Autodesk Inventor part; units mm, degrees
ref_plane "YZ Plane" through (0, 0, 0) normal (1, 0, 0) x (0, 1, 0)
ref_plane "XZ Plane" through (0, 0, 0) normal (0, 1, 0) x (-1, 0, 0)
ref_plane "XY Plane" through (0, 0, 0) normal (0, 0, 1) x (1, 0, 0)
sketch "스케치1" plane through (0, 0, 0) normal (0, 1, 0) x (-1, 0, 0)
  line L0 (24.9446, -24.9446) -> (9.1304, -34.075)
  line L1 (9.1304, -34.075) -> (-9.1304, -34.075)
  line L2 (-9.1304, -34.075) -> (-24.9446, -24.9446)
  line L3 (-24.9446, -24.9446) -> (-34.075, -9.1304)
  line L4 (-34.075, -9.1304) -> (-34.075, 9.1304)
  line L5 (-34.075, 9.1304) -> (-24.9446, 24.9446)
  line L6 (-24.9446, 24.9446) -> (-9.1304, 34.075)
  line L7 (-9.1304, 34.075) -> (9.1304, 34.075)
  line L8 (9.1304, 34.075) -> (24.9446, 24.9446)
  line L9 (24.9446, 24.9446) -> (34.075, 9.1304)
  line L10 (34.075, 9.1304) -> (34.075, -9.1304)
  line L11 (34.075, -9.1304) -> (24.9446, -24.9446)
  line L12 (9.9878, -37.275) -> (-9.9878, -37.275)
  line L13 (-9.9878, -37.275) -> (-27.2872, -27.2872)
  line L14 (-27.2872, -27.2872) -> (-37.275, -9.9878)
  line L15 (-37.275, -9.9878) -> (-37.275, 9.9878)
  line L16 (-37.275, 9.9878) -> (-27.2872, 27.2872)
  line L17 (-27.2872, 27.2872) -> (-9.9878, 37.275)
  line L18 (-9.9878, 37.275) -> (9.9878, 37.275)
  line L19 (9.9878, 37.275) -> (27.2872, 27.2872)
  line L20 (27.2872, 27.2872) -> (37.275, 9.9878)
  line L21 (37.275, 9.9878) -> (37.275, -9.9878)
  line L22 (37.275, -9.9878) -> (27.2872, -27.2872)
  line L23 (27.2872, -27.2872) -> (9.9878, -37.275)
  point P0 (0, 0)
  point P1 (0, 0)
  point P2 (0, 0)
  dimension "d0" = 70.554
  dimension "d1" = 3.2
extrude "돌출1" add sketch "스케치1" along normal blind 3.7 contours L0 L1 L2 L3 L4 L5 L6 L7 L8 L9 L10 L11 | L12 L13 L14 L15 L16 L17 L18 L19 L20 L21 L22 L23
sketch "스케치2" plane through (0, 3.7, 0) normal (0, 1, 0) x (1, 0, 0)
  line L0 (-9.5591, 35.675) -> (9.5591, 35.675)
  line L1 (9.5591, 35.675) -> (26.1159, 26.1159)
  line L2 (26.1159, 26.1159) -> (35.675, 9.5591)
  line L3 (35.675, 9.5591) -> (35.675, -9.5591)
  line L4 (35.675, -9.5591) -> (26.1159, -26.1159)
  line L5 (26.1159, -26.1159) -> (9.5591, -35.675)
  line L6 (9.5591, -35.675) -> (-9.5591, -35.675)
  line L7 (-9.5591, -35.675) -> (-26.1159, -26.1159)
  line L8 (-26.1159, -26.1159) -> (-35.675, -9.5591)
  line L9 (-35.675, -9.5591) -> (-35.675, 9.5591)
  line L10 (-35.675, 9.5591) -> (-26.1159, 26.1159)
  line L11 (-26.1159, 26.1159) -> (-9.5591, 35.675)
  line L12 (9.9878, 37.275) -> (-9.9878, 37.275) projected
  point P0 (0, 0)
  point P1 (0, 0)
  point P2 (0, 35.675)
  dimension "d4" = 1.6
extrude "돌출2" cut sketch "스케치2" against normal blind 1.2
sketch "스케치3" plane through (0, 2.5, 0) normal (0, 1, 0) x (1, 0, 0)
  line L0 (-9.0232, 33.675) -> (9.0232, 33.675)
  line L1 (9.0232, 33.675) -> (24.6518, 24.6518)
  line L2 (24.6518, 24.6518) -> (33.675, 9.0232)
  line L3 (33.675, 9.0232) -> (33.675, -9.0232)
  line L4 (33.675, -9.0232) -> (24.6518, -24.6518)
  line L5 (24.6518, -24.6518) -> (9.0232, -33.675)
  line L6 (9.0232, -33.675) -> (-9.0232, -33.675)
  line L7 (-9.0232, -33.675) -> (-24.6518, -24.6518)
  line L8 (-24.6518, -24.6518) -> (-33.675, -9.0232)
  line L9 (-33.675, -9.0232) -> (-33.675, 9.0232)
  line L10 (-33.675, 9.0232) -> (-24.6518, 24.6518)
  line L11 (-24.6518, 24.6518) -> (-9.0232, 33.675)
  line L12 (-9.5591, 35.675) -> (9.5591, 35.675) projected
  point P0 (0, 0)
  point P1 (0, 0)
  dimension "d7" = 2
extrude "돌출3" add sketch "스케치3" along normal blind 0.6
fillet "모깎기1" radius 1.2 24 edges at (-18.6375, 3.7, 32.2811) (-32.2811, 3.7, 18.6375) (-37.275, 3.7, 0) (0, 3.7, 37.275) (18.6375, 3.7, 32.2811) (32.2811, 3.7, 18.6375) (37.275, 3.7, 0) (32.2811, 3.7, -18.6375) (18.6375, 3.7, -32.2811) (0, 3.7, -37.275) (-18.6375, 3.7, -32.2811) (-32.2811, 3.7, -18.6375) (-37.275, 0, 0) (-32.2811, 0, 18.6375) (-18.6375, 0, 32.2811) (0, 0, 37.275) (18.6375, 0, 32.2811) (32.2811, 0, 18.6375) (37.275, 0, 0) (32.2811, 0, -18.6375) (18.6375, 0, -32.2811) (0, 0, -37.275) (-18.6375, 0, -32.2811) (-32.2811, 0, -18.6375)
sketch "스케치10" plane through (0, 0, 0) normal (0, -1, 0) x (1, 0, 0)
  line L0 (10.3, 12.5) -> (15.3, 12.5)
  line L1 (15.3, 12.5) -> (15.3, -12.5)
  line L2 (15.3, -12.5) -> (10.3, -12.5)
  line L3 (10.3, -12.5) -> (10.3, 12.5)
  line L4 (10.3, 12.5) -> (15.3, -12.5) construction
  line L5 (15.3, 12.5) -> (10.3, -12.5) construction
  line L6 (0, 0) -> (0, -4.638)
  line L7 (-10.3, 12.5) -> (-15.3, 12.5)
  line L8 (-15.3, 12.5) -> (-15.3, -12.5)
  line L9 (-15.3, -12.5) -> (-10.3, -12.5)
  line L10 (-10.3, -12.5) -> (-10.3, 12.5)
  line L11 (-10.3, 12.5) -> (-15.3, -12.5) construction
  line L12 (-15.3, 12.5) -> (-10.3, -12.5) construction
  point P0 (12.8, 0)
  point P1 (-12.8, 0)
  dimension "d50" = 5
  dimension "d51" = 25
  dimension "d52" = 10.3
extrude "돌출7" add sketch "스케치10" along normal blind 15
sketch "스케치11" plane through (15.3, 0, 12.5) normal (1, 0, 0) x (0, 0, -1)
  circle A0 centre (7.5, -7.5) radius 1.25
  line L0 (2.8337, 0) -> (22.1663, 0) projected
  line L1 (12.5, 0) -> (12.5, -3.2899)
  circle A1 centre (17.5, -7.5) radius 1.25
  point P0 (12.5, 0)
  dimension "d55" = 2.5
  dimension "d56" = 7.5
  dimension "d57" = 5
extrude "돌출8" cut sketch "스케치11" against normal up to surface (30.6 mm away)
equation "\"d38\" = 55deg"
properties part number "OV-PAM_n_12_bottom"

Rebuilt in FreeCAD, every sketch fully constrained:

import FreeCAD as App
import Part
import Sketcher
from FreeCAD import Vector
Q = App.Units.Quantity


def edges_at(feature, points):
    """Names of the edges that pass closest to the given points."""
    edges = feature.Shape.Edges
    near = lambda p: min(range(len(edges)), key=lambda i: edges[i].distToShape(Part.Vertex(*p))[0])
    return sorted({f"Edge{near(p) + 1}" for p in points})


def add_polygon(sketch, points):
    """Adds a closed chain of lines whose ends are joined by coincident constraints."""
    first, n = sketch.GeometryCount, len(points)
    for a, b in zip(points, points[1:] + points[:1]):
        sketch.addGeometry(Part.LineSegment(App.Vector(*a, 0), App.Vector(*b, 0)), False)
    for i in range(n):
        sketch.addConstraint(Sketcher.Constraint("Coincident", first + i, 2, first + (i + 1) % n, 1))

doc = App.newDocument("Part")
body = doc.addObject("PartDesign::Body", "Body")

sketch1 = body.newObject("Sketcher::SketchObject", "Sketch")
sketch1.AttachmentSupport = (doc.getObject("XZ_Plane"), [""])
sketch1.MapMode = "FlatFace"
add_polygon(sketch1, [(10, -37), (-10, -37), (-27, -27), (-37, -10), (-37, 10), (-27, 27), (-10, 37), (10, 37), (27, 27), (37, 10), (37, -10), (27, -27)])
sketch1.addConstraint(Sketcher.Constraint("Horizontal", 0))
sketch1.addConstraint(Sketcher.Constraint("Vertical", 3))
sketch1.addConstraint(Sketcher.Constraint("Horizontal", 6))
sketch1.addConstraint(Sketcher.Constraint("Vertical", 9))
sketch1.addConstraint(Sketcher.Constraint("Symmetric", 0, 2, 6, 2, -1, 1))
sketch1.addConstraint(Sketcher.Constraint("Symmetric", 1, 2, 7, 2, -1, 1))
sketch1.addConstraint(Sketcher.Constraint("Symmetric", 2, 2, 8, 2, -1, 1))
sketch1.addConstraint(Sketcher.Constraint("Symmetric", 4, 2, 10, 2, -1, 1))
sketch1.addConstraint(Sketcher.Constraint("Symmetric", 4, 2, 7, 2, -2))
sketch1.addConstraint(Sketcher.Constraint("Perpendicular", 1, 4))
sketch1.addConstraint(Sketcher.Constraint("Perpendicular", 2, 5))
sketch1.addConstraint(Sketcher.Constraint("Perpendicular", 7, 10))
sketch1.addConstraint(Sketcher.Constraint("Perpendicular", 8, 11))
sketch1.addConstraint(Sketcher.Constraint("Horizontal", 3, 2, 8, 2))
sketch1.addConstraint(Sketcher.Constraint("Equal", 6, 3))
sketch1.addConstraint(Sketcher.Constraint("Equal", 1, 2))
sketch1.addConstraint(Sketcher.Constraint("Angle", 1, Q("150 deg")))
sketch1.addConstraint(Sketcher.Constraint("DistanceY", 0, 2, 5, 2, Q("74.55 mm")))
sketch1.addConstraint(Sketcher.Constraint("DistanceX", 0, 2, 0, 1, Q("19.9756 mm")))
pad1 = body.newObject("PartDesign::Pad", "Pad")
pad1.Profile = sketch1
pad1.Length = 3.7
pad1.Reversed = True

sketch2 = body.newObject("Sketcher::SketchObject", "Sketch001")
sketch2.AttachmentSupport = (doc.getObject("XZ_Plane"), [""])
sketch2.MapMode = "FlatFace"
sketch2.AttachmentOffset = App.Placement(Vector(0, 0, -3.7), App.Rotation())
add_polygon(sketch2, [(10, -36), (-10, -36), (-26, -26), (-36, -10), (-36, 10), (-26, 26), (-10, 36), (10, 36), (26, 26), (36, 10), (36, -10), (26, -26)])
sketch2.addConstraint(Sketcher.Constraint("Horizontal", 0))
sketch2.addConstraint(Sketcher.Constraint("Vertical", 3))
sketch2.addConstraint(Sketcher.Constraint("Horizontal", 6))
sketch2.addConstraint(Sketcher.Constraint("Vertical", 9))
sketch2.addConstraint(Sketcher.Constraint("Symmetric", 0, 2, 6, 2, -1, 1))
sketch2.addConstraint(Sketcher.Constraint("Symmetric", 1, 2, 7, 2, -1, 1))
sketch2.addConstraint(Sketcher.Constraint("Symmetric", 2, 2, 8, 2, -1, 1))
sketch2.addConstraint(Sketcher.Constraint("Symmetric", 4, 2, 10, 2, -1, 1))
sketch2.addConstraint(Sketcher.Constraint("Symmetric", 4, 2, 7, 2, -2))
sketch2.addConstraint(Sketcher.Constraint("Perpendicular", 1, 4))
sketch2.addConstraint(Sketcher.Constraint("Perpendicular", 2, 5))
sketch2.addConstraint(Sketcher.Constraint("Perpendicular", 7, 10))
sketch2.addConstraint(Sketcher.Constraint("Perpendicular", 8, 11))
sketch2.addConstraint(Sketcher.Constraint("Horizontal", 3, 2, 8, 2))
sketch2.addConstraint(Sketcher.Constraint("Equal", 6, 3))
sketch2.addConstraint(Sketcher.Constraint("Equal", 1, 2))
sketch2.addConstraint(Sketcher.Constraint("Angle", 1, Q("150 deg")))
sketch2.addConstraint(Sketcher.Constraint("DistanceY", 0, 2, 5, 2, Q("71.35 mm")))
sketch2.addConstraint(Sketcher.Constraint("DistanceX", 0, 2, 0, 1, Q("19.1182 mm")))
pocket1 = body.newObject("PartDesign::Pocket", "Pocket")
pocket1.Profile = sketch2
pocket1.Length = 1.2
pocket1.Reversed = True

sketch3 = body.newObject("Sketcher::SketchObject", "Sketch002")
sketch3.AttachmentSupport = (doc.getObject("XZ_Plane"), [""])
sketch3.MapMode = "FlatFace"
sketch3.AttachmentOffset = App.Placement(Vector(0, 0, -2.5), App.Rotation())
add_polygon(sketch3, [(9, -34), (-9, -34), (-25, -25), (-34, -9), (-34, 9), (-25, 25), (-9, 34), (9, 34), (25, 25), (34, 9), (34, -9), (25, -25)])
sketch3.addConstraint(Sketcher.Constraint("Horizontal", 0))
sketch3.addConstraint(Sketcher.Constraint("Vertical", 3))
sketch3.addConstraint(Sketcher.Constraint("Horizontal", 6))
sketch3.addConstraint(Sketcher.Constraint("Vertical", 9))
sketch3.addConstraint(Sketcher.Constraint("Symmetric", 0, 2, 6, 2, -1, 1))
sketch3.addConstraint(Sketcher.Constraint("Symmetric", 1, 2, 7, 2, -1, 1))
sketch3.addConstraint(Sketcher.Constraint("Symmetric", 2, 2, 8, 2, -1, 1))
sketch3.addConstraint(Sketcher.Constraint("Symmetric", 4, 2, 10, 2, -1, 1))
sketch3.addConstraint(Sketcher.Constraint("Symmetric", 4, 2, 7, 2, -2))
sketch3.addConstraint(Sketcher.Constraint("Perpendicular", 1, 4))
sketch3.addConstraint(Sketcher.Constraint("Perpendicular", 2, 5))
sketch3.addConstraint(Sketcher.Constraint("Perpendicular", 7, 10))
sketch3.addConstraint(Sketcher.Constraint("Perpendicular", 8, 11))
sketch3.addConstraint(Sketcher.Constraint("Horizontal", 3, 2, 8, 2))
sketch3.addConstraint(Sketcher.Constraint("Equal", 6, 3))
sketch3.addConstraint(Sketcher.Constraint("Equal", 1, 2))
sketch3.addConstraint(Sketcher.Constraint("Angle", 1, Q("150 deg")))
sketch3.addConstraint(Sketcher.Constraint("DistanceY", 0, 2, 5, 2, Q("67.35 mm")))
sketch3.addConstraint(Sketcher.Constraint("DistanceX", 0, 2, 0, 1, Q("18.0464 mm")))
pad2 = body.newObject("PartDesign::Pad", "Pad001")
pad2.Profile = sketch3
pad2.Length = 0.6
pad2.Reversed = True
doc.recompute()

fillet = body.newObject("PartDesign::Fillet", "Fillet")
fillet.Base = (pad2, edges_at(pad2, [
    (-18.637, 3.7, 32.281),
    (-32.281, 3.7, 18.637),
    (-37.275, 3.7, 0),
    (0, 3.7, 37.275),
    (18.637, 3.7, 32.281),
    (32.281, 3.7, 18.637),
    (37.275, 3.7, 0),
    (32.281, 3.7, -18.637),
    (18.637, 3.7, -32.281),
    (0, 3.7, -37.275),
    (-18.637, 3.7, -32.281),
    (-32.281, 3.7, -18.637),
    (-37.275, 0, 0),
    (-32.281, 0, 18.637),
    (-18.637, 0, 32.281),
    (0, 0, 37.275),
    (18.637, 0, 32.281),
    (32.281, 0, 18.637),
    (37.275, 0, 0),
    (32.281, 0, -18.637),
    (18.637, 0, -32.281),
    (0, 0, -37.275),
    (-18.637, 0, -32.281),
    (-32.281, 0, -18.637),
]))
fillet.Radius = 1.2

sketch4 = body.newObject("Sketcher::SketchObject", "Sketch003")
sketch4.AttachmentSupport = (doc.getObject("XZ_Plane"), [""])
sketch4.MapMode = "FlatFace"
add_polygon(sketch4, [(15, 12), (10, 12), (10, -12), (15, -12)])
add_polygon(sketch4, [(-10, -12), (-10, 12), (-15, 12), (-15, -12)])
sketch4.addConstraint(Sketcher.Constraint("Horizontal", 0))
sketch4.addConstraint(Sketcher.Constraint("Vertical", 1))
sketch4.addConstraint(Sketcher.Constraint("Horizontal", 2))
sketch4.addConstraint(Sketcher.Constraint("Vertical", 3))
sketch4.addConstraint(Sketcher.Constraint("Vertical", 4))
sketch4.addConstraint(Sketcher.Constraint("Horizontal", 5))
sketch4.addConstraint(Sketcher.Constraint("Vertical", 6))
sketch4.addConstraint(Sketcher.Constraint("Horizontal", 7))
sketch4.addConstraint(Sketcher.Constraint("Symmetric", 1, 2, 4, 2, -1, 1))
sketch4.addConstraint(Sketcher.Constraint("Symmetric", 3, 2, 6, 2, -1, 1))
sketch4.addConstraint(Sketcher.Constraint("Horizontal", 3, 2, 4, 2))
sketch4.addConstraint(Sketcher.Constraint("DistanceX", 0, 2, 0, 1, Q("5 mm")))
sketch4.addConstraint(Sketcher.Constraint("DistanceY", 1, 2, 1, 1, Q("25 mm")))
sketch4.addConstraint(Sketcher.Constraint("DistanceX", -1, 1, 0, 2, Q("10.3 mm")))
pad3 = body.newObject("PartDesign::Pad", "Pad002")
pad3.Profile = sketch4
pad3.Length = 15

sketch5 = body.newObject("Sketcher::SketchObject", "Sketch004")
sketch5.AttachmentSupport = (doc.getObject("YZ_Plane"), [""])
sketch5.MapMode = "FlatFace"
sketch5.AttachmentOffset = App.Placement(Vector(0, 0, 15.3), App.Rotation())
sketch5.addGeometry(Part.Circle(Vector(-7.5, 5, 0), Vector(0, 0, 1), 1.2), False)
sketch5.addGeometry(Part.Circle(Vector(-7.5, -5, 0), Vector(0, 0, 1), 1.2), False)
sketch5.addConstraint(Sketcher.Constraint("Equal", 0, 1))
sketch5.addConstraint(Sketcher.Constraint("Symmetric", 0, 3, 1, 3, -1))
sketch5.addConstraint(Sketcher.Constraint("Diameter", 0, Q("2.5 mm")))
sketch5.addConstraint(Sketcher.Constraint("DistanceY", -1, 1, 0, 3, Q("5 mm")))
sketch5.addConstraint(Sketcher.Constraint("DistanceX", 0, 3, -1, 1, Q("7.5 mm")))
pocket2 = body.newObject("PartDesign::Pocket", "Pocket001")
pocket2.Profile = sketch5
pocket2.Length = 30.6

doc.recompute()
